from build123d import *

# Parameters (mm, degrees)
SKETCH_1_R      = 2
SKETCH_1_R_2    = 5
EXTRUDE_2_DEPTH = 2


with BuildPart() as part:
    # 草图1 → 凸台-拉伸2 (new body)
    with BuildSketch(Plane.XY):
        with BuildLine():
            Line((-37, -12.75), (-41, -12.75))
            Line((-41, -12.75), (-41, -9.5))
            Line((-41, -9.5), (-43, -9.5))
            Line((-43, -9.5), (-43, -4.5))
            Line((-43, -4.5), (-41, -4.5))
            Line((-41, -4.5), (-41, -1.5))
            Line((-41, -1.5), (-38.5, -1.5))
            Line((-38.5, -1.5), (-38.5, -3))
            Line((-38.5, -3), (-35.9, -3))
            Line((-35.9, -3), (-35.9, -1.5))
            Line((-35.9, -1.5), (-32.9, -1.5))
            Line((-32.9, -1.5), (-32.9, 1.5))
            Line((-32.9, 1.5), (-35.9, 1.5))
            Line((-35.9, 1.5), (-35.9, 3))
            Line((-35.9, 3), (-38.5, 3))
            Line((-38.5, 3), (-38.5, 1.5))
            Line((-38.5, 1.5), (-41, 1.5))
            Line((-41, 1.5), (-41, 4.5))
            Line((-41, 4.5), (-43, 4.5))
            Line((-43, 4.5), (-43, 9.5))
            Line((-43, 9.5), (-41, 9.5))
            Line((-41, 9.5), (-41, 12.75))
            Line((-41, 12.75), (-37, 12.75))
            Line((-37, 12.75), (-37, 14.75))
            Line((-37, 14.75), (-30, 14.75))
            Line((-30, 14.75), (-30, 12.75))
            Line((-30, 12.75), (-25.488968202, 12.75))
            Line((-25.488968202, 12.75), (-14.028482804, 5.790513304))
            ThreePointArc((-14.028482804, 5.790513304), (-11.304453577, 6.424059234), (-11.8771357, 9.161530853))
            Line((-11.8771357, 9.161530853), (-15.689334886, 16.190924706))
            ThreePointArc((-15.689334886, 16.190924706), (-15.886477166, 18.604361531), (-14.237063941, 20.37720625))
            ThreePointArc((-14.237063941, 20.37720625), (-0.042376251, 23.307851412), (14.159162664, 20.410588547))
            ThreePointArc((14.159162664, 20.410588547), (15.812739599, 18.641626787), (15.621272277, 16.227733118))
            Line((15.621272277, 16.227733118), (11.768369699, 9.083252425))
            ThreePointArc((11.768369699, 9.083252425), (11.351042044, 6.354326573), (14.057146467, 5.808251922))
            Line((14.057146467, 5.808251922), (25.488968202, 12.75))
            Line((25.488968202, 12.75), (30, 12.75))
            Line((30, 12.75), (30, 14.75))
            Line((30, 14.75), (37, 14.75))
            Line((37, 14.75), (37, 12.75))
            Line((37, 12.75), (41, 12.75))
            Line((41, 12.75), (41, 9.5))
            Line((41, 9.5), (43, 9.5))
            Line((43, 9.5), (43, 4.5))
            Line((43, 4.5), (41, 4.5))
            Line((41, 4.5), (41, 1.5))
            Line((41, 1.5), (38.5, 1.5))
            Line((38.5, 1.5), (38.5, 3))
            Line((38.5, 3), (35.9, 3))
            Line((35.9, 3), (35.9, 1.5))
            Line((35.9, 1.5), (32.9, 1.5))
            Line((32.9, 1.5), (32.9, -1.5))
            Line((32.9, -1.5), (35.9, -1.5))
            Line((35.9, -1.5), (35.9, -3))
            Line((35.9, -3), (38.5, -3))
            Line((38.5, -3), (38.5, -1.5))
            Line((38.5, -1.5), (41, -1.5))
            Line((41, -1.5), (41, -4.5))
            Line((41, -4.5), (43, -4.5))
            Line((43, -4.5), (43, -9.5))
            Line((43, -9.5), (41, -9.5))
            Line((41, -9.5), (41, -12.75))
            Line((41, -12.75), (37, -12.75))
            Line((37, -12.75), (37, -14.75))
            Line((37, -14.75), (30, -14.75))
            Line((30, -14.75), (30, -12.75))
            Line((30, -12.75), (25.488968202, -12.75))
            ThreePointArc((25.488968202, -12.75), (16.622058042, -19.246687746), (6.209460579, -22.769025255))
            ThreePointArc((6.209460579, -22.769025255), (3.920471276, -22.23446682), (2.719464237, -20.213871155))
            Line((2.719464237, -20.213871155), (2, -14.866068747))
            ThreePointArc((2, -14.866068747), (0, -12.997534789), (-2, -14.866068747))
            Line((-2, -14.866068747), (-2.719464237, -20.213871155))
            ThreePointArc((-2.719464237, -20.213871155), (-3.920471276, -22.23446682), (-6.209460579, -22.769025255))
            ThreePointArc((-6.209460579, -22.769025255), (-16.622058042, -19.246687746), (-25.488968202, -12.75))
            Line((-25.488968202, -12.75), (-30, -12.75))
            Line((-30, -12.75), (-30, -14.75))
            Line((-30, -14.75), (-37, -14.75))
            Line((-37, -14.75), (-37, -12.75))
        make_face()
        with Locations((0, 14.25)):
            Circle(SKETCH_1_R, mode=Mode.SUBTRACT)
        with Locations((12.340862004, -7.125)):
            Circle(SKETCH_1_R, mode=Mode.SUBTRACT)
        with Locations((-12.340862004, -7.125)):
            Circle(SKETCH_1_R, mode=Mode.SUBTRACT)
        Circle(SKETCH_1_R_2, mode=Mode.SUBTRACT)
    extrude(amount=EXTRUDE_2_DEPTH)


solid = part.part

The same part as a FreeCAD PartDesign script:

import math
import FreeCAD as App
import Part
import Sketcher
Q = App.Units.Quantity

doc = App.newDocument("Part")
body = doc.addObject("PartDesign::Body", "Body")

# Sketch on XY plane
sketch1 = body.newObject("Sketcher::SketchObject", "Sketch")
sketch1.AttachmentSupport = (doc.getObject("XY_Plane"), [""])
sketch1.MapMode = "FlatFace"
sketch1.addGeometry([
    Part.LineSegment(App.Vector(-41, -12.8, 0), App.Vector(-37, -12.8, 0)),  # 0
    Part.LineSegment(App.Vector(-37, -12.8, 0), App.Vector(-37, -14.8, 0)),  # 1
    Part.LineSegment(App.Vector(-37, -14.8, 0), App.Vector(-30, -14.8, 0)),  # 2
    Part.LineSegment(App.Vector(-30, -14.8, 0), App.Vector(-30, -12.8, 0)),  # 3
    Part.LineSegment(App.Vector(-30, -12.8, 0), App.Vector(-25.5, -12.8, 0)),  # 4
    Part.ArcOfCircle(Part.Circle(App.Vector(0, 12.7, 0), App.Vector(0, 0, 1), 36), math.radians(-135), math.radians(-100)),  # 5
    Part.ArcOfCircle(Part.Circle(App.Vector(-5.7, -19.8, 0), App.Vector(0, 0, 1), 3), math.radians(-100), math.radians(-8)),  # 6
    Part.LineSegment(App.Vector(-2.7, -20.2, 0), App.Vector(-2, -14.9, 0)),  # 7
    Part.ArcOfCircle(Part.Circle(App.Vector(0, -15, 0), App.Vector(0, 0, 1), 2), math.radians(4), math.radians(176)),  # 8
    Part.LineSegment(App.Vector(2, -14.9, 0), App.Vector(2.7, -20.2, 0)),  # 9
    Part.ArcOfCircle(Part.Circle(App.Vector(5.7, -19.8, 0), App.Vector(0, 0, 1), 3), math.radians(-172), math.radians(-80)),  # 10
    Part.ArcOfCircle(Part.Circle(App.Vector(0, 12.7, 0), App.Vector(0, 0, 1), 36), math.radians(-80), math.radians(-45)),  # 11
    Part.LineSegment(App.Vector(25.5, -12.8, 0), App.Vector(30, -12.8, 0)),  # 12
    Part.LineSegment(App.Vector(30, -12.8, 0), App.Vector(30, -14.8, 0)),  # 13
    Part.LineSegment(App.Vector(30, -14.8, 0), App.Vector(37, -14.8, 0)),  # 14
    Part.LineSegment(App.Vector(37, -14.8, 0), App.Vector(37, -12.8, 0)),  # 15
    Part.LineSegment(App.Vector(37, -12.8, 0), App.Vector(41, -12.8, 0)),  # 16
    Part.LineSegment(App.Vector(41, -12.8, 0), App.Vector(41, -9.5, 0)),  # 17
    Part.LineSegment(App.Vector(41, -9.5, 0), App.Vector(43, -9.5, 0)),  # 18
    Part.LineSegment(App.Vector(43, -9.5, 0), App.Vector(43, -4.5, 0)),  # 19
    Part.LineSegment(App.Vector(43, -4.5, 0), App.Vector(41, -4.5, 0)),  # 20
    Part.LineSegment(App.Vector(41, -4.5, 0), App.Vector(41, -1.5, 0)),  # 21
    Part.LineSegment(App.Vector(41, -1.5, 0), App.Vector(38.5, -1.5, 0)),  # 22
    Part.LineSegment(App.Vector(38.5, -1.5, 0), App.Vector(38.5, -3, 0)),  # 23
    Part.LineSegment(App.Vector(38.5, -3, 0), App.Vector(35.9, -3, 0)),  # 24
    Part.LineSegment(App.Vector(35.9, -3, 0), App.Vector(35.9, -1.5, 0)),  # 25
    Part.LineSegment(App.Vector(35.9, -1.5, 0), App.Vector(32.9, -1.5, 0)),  # 26
    Part.LineSegment(App.Vector(32.9, -1.5, 0), App.Vector(32.9, 1.5, 0)),  # 27
    Part.LineSegment(App.Vector(32.9, 1.5, 0), App.Vector(35.9, 1.5, 0)),  # 28
    Part.LineSegment(App.Vector(35.9, 1.5, 0), App.Vector(35.9, 3, 0)),  # 29
    Part.LineSegment(App.Vector(35.9, 3, 0), App.Vector(38.5, 3, 0)),  # 30
    Part.LineSegment(App.Vector(38.5, 3, 0), App.Vector(38.5, 1.5, 0)),  # 31
    Part.LineSegment(App.Vector(38.5, 1.5, 0), App.Vector(41, 1.5, 0)),  # 32
    Part.LineSegment(App.Vector(41, 1.5, 0), App.Vector(41, 4.5, 0)),  # 33
    Part.LineSegment(App.Vector(41, 4.5, 0), App.Vector(43, 4.5, 0)),  # 34
    Part.LineSegment(App.Vector(43, 4.5, 0), App.Vector(43, 9.5, 0)),  # 35
    Part.LineSegment(App.Vector(43, 9.5, 0), App.Vector(41, 9.5, 0)),  # 36
    Part.LineSegment(App.Vector(41, 9.5, 0), App.Vector(41, 12.8, 0)),  # 37
    Part.LineSegment(App.Vector(41, 12.8, 0), App.Vector(37, 12.8, 0)),  # 38
    Part.LineSegment(App.Vector(37, 12.8, 0), App.Vector(37, 14.8, 0)),  # 39
    Part.LineSegment(App.Vector(37, 14.8, 0), App.Vector(30, 14.8, 0)),  # 40
    Part.LineSegment(App.Vector(30, 14.8, 0), App.Vector(30, 12.8, 0)),  # 41
    Part.LineSegment(App.Vector(30, 12.8, 0), App.Vector(25.5, 12.8, 0)),  # 42
    Part.LineSegment(App.Vector(25.5, 12.8, 0), App.Vector(14.1, 5.8, 0)),  # 43
    Part.ArcOfCircle(Part.Circle(App.Vector(13, 7.5, 0), App.Vector(0, 0, 1), 2), math.radians(128), math.radians(302)),  # 44
    Part.LineSegment(App.Vector(11.8, 9.1, 0), App.Vector(15.6, 16.2, 0)),  # 45
    Part.ArcOfCircle(Part.Circle(App.Vector(13, 17.7, 0), App.Vector(0, 0, 1), 3), math.radians(-28), math.radians(67)),  # 46
    Part.ArcOfCircle(Part.Circle(App.Vector(0, -12.7, 0), App.Vector(0, 0, 1), 36), math.radians(67), math.radians(113)),  # 47
    Part.ArcOfCircle(Part.Circle(App.Vector(-13.1, 17.6, 0), App.Vector(0, 0, 1), 3), math.radians(113), math.radians(208)),  # 48
    Part.LineSegment(App.Vector(-15.7, 16.2, 0), App.Vector(-11.9, 9.2, 0)),  # 49
    Part.ArcOfCircle(Part.Circle(App.Vector(-13, 7.5, 0), App.Vector(0, 0, 1), 2), math.radians(-121), math.radians(56)),  # 50
    Part.LineSegment(App.Vector(-14, 5.8, 0), App.Vector(-25.5, 12.8, 0)),  # 51
    Part.LineSegment(App.Vector(-25.5, 12.8, 0), App.Vector(-30, 12.8, 0)),  # 52
    Part.LineSegment(App.Vector(-30, 12.8, 0), App.Vector(-30, 14.8, 0)),  # 53
    Part.LineSegment(App.Vector(-30, 14.8, 0), App.Vector(-37, 14.8, 0)),  # 54
    Part.LineSegment(App.Vector(-37, 14.8, 0), App.Vector(-37, 12.8, 0)),  # 55
    Part.LineSegment(App.Vector(-37, 12.8, 0), App.Vector(-41, 12.8, 0)),  # 56
    Part.LineSegment(App.Vector(-41, 12.8, 0), App.Vector(-41, 9.5, 0)),  # 57
    Part.LineSegment(App.Vector(-41, 9.5, 0), App.Vector(-43, 9.5, 0)),  # 58
    Part.LineSegment(App.Vector(-43, 9.5, 0), App.Vector(-43, 4.5, 0)),  # 59
    Part.LineSegment(App.Vector(-43, 4.5, 0), App.Vector(-41, 4.5, 0)),  # 60
    Part.LineSegment(App.Vector(-41, 4.5, 0), App.Vector(-41, 1.5, 0)),  # 61
    Part.LineSegment(App.Vector(-41, 1.5, 0), App.Vector(-38.5, 1.5, 0)),  # 62
    Part.LineSegment(App.Vector(-38.5, 1.5, 0), App.Vector(-38.5, 3, 0)),  # 63
    Part.LineSegment(App.Vector(-38.5, 3, 0), App.Vector(-35.9, 3, 0)),  # 64
    Part.LineSegment(App.Vector(-35.9, 3, 0), App.Vector(-35.9, 1.5, 0)),  # 65
    Part.LineSegment(App.Vector(-35.9, 1.5, 0), App.Vector(-32.9, 1.5, 0)),  # 66
    Part.LineSegment(App.Vector(-32.9, 1.5, 0), App.Vector(-32.9, -1.5, 0)),  # 67
    Part.LineSegment(App.Vector(-32.9, -1.5, 0), App.Vector(-35.9, -1.5, 0)),  # 68
    Part.LineSegment(App.Vector(-35.9, -1.5, 0), App.Vector(-35.9, -3, 0)),  # 69
    Part.LineSegment(App.Vector(-35.9, -3, 0), App.Vector(-38.5, -3, 0)),  # 70
    Part.LineSegment(App.Vector(-38.5, -3, 0), App.Vector(-38.5, -1.5, 0)),  # 71
    Part.LineSegment(App.Vector(-38.5, -1.5, 0), App.Vector(-41, -1.5, 0)),  # 72
    Part.LineSegment(App.Vector(-41, -1.5, 0), App.Vector(-41, -4.5, 0)),  # 73
    Part.LineSegment(App.Vector(-41, -4.5, 0), App.Vector(-43, -4.5, 0)),  # 74
    Part.LineSegment(App.Vector(-43, -4.5, 0), App.Vector(-43, -9.5, 0)),  # 75
    Part.LineSegment(App.Vector(-43, -9.5, 0), App.Vector(-41, -9.5, 0)),  # 76
    Part.LineSegment(App.Vector(-41, -9.5, 0), App.Vector(-41, -12.8, 0)),  # 77
    Part.Circle(App.Vector(12.3, -7.1, 0), App.Vector(0, 0, 1), 2),  # 78
    Part.Circle(App.Vector(-12.3, -7.1, 0), App.Vector(0, 0, 1), 2),  # 79
    Part.Circle(App.Vector(0, 0, 0), App.Vector(0, 0, 1), 5),  # 80
    Part.Circle(App.Vector(0, 14.2, 0), App.Vector(0, 0, 1), 2),  # 81
], False)
sketch1.addConstraint([
    Sketcher.Constraint("Coincident", 0, 2, 1, 1),
    Sketcher.Constraint("Coincident", 1, 2, 2, 1),
    Sketcher.Constraint("Coincident", 2, 2, 3, 1),
    Sketcher.Constraint("Coincident", 3, 2, 4, 1),
    Sketcher.Constraint("Coincident", 4, 2, 5, 1),
    Sketcher.Constraint("Tangent", 5, 2, 6, 1),
    Sketcher.Constraint("Tangent", 6, 2, 7, 1),
    Sketcher.Constraint("Coincident", 7, 2, 8, 2),
    Sketcher.Constraint("Coincident", 8, 1, 9, 1),
    Sketcher.Constraint("Tangent", 9, 2, 10, 1),
    Sketcher.Constraint("Tangent", 10, 2, 11, 1),
    Sketcher.Constraint("Coincident", 11, 2, 12, 1),
    Sketcher.Constraint("Coincident", 12, 2, 13, 1),
    Sketcher.Constraint("Coincident", 13, 2, 14, 1),
    Sketcher.Constraint("Coincident", 14, 2, 15, 1),
    Sketcher.Constraint("Coincident", 15, 2, 16, 1),
    Sketcher.Constraint("Coincident", 16, 2, 17, 1),
    Sketcher.Constraint("Coincident", 17, 2, 18, 1),
    Sketcher.Constraint("Coincident", 18, 2, 19, 1),
    Sketcher.Constraint("Coincident", 19, 2, 20, 1),
    Sketcher.Constraint("Coincident", 20, 2, 21, 1),
    Sketcher.Constraint("Coincident", 21, 2, 22, 1),
    Sketcher.Constraint("Coincident", 22, 2, 23, 1),
    Sketcher.Constraint("Coincident", 23, 2, 24, 1),
    Sketcher.Constraint("Coincident", 24, 2, 25, 1),
    Sketcher.Constraint("Coincident", 25, 2, 26, 1),
    Sketcher.Constraint("Coincident", 26, 2, 27, 1),
    Sketcher.Constraint("Coincident", 27, 2, 28, 1),
    Sketcher.Constraint("Coincident", 28, 2, 29, 1),
    Sketcher.Constraint("Coincident", 29, 2, 30, 1),
    Sketcher.Constraint("Coincident", 30, 2, 31, 1),
    Sketcher.Constraint("Coincident", 31, 2, 32, 1),
    Sketcher.Constraint("Coincident", 32, 2, 33, 1),
    Sketcher.Constraint("Coincident", 33, 2, 34, 1),
    Sketcher.Constraint("Coincident", 34, 2, 35, 1),
    Sketcher.Constraint("Coincident", 35, 2, 36, 1),
    Sketcher.Constraint("Coincident", 36, 2, 37, 1),
    Sketcher.Constraint("Coincident", 37, 2, 38, 1),
    Sketcher.Constraint("Coincident", 38, 2, 39, 1),
    Sketcher.Constraint("Coincident", 39, 2, 40, 1),
    Sketcher.Constraint("Coincident", 40, 2, 41, 1),
    Sketcher.Constraint("Coincident", 41, 2, 42, 1),
    Sketcher.Constraint("Coincident", 42, 2, 43, 1),
    Sketcher.Constraint("Coincident", 43, 2, 44, 2),
    Sketcher.Constraint("Coincident", 44, 1, 45, 1),
    Sketcher.Constraint("Tangent", 45, 2, 46, 1),
    Sketcher.Constraint("Tangent", 46, 2, 47, 1),
    Sketcher.Constraint("Tangent", 47, 2, 48, 1),
    Sketcher.Constraint("Tangent", 48, 2, 49, 1),
    Sketcher.Constraint("Coincident", 49, 2, 50, 2),
    Sketcher.Constraint("Tangent", 50, 1, 51, 1),
    Sketcher.Constraint("Coincident", 51, 2, 52, 1),
    Sketcher.Constraint("Coincident", 52, 2, 53, 1),
    Sketcher.Constraint("Coincident", 53, 2, 54, 1),
    Sketcher.Constraint("Coincident", 54, 2, 55, 1),
    Sketcher.Constraint("Coincident", 55, 2, 56, 1),
    Sketcher.Constraint("Coincident", 56, 2, 57, 1),
    Sketcher.Constraint("Coincident", 57, 2, 58, 1),
    Sketcher.Constraint("Coincident", 58, 2, 59, 1),
    Sketcher.Constraint("Coincident", 59, 2, 60, 1),
    Sketcher.Constraint("Coincident", 60, 2, 61, 1),
    Sketcher.Constraint("Coincident", 61, 2, 62, 1),
    Sketcher.Constraint("Coincident", 62, 2, 63, 1),
    Sketcher.Constraint("Coincident", 63, 2, 64, 1),
    Sketcher.Constraint("Coincident", 64, 2, 65, 1),
    Sketcher.Constraint("Coincident", 65, 2, 66, 1),
    Sketcher.Constraint("Coincident", 66, 2, 67, 1),
    Sketcher.Constraint("Coincident", 67, 2, 68, 1),
    Sketcher.Constraint("Coincident", 68, 2, 69, 1),
    Sketcher.Constraint("Coincident", 69, 2, 70, 1),
    Sketcher.Constraint("Coincident", 70, 2, 71, 1),
    Sketcher.Constraint("Coincident", 71, 2, 72, 1),
    Sketcher.Constraint("Coincident", 72, 2, 73, 1),
    Sketcher.Constraint("Coincident", 73, 2, 74, 1),
    Sketcher.Constraint("Coincident", 74, 2, 75, 1),
    Sketcher.Constraint("Coincident", 75, 2, 76, 1),
    Sketcher.Constraint("Coincident", 76, 2, 77, 1),
    Sketcher.Constraint("Coincident", 77, 2, 0, 1),
    Sketcher.Constraint("Horizontal", 0),
    Sketcher.Constraint("Vertical", 1),
    Sketcher.Constraint("Horizontal", 2),
    Sketcher.Constraint("Vertical", 3),
    Sketcher.Constraint("Horizontal", 4),
    Sketcher.Constraint("Horizontal", 12),
    Sketcher.Constraint("Vertical", 13),
    Sketcher.Constraint("Horizontal", 14),
    Sketcher.Constraint("Vertical", 15),
    Sketcher.Constraint("Horizontal", 16),
    Sketcher.Constraint("Vertical", 17),
    Sketcher.Constraint("Horizontal", 18),
    Sketcher.Constraint("Vertical", 19),
    Sketcher.Constraint("Horizontal", 20),
    Sketcher.Constraint("Vertical", 21),
    Sketcher.Constraint("Horizontal", 22),
    Sketcher.Constraint("Vertical", 23),
    Sketcher.Constraint("Horizontal", 24),
    Sketcher.Constraint("Vertical", 25),
    Sketcher.Constraint("Horizontal", 26),
    Sketcher.Constraint("Vertical", 27),
    Sketcher.Constraint("Horizontal", 28),
    Sketcher.Constraint("Vertical", 29),
    Sketcher.Constraint("Horizontal", 30),
    Sketcher.Constraint("Vertical", 31),
    Sketcher.Constraint("Horizontal", 32),
    Sketcher.Constraint("Vertical", 33),
    Sketcher.Constraint("Horizontal", 34),
    Sketcher.Constraint("Vertical", 35),
    Sketcher.Constraint("Horizontal", 36),
    Sketcher.Constraint("Vertical", 37),
    Sketcher.Constraint("Horizontal", 38),
    Sketcher.Constraint("Vertical", 39),
    Sketcher.Constraint("Horizontal", 40),
    Sketcher.Constraint("Vertical", 41),
    Sketcher.Constraint("Horizontal", 42),
    Sketcher.Constraint("Horizontal", 52),
    Sketcher.Constraint("Vertical", 53),
    Sketcher.Constraint("Horizontal", 54),
    Sketcher.Constraint("Vertical", 55),
    Sketcher.Constraint("Horizontal", 56),
    Sketcher.Constraint("Vertical", 57),
    Sketcher.Constraint("Horizontal", 58),
    Sketcher.Constraint("Vertical", 59),
    Sketcher.Constraint("Horizontal", 60),
    Sketcher.Constraint("Vertical", 61),
    Sketcher.Constraint("Horizontal", 62),
    Sketcher.Constraint("Vertical", 63),
    Sketcher.Constraint("Horizontal", 64),
    Sketcher.Constraint("Vertical", 65),
    Sketcher.Constraint("Horizontal", 66),
    Sketcher.Constraint("Vertical", 67),
    Sketcher.Constraint("Horizontal", 68),
    Sketcher.Constraint("Vertical", 69),
    Sketcher.Constraint("Horizontal", 70),
    Sketcher.Constraint("Vertical", 71),
    Sketcher.Constraint("Horizontal", 72),
    Sketcher.Constraint("Vertical", 73),
    Sketcher.Constraint("Horizontal", 74),
    Sketcher.Constraint("Vertical", 75),
    Sketcher.Constraint("Horizontal", 76),
    Sketcher.Constraint("Vertical", 77),
    Sketcher.Constraint("Coincident", 80, 3, -1, 1),
    Sketcher.Constraint("Coincident", 11, 3, 5, 3),
    Sketcher.Constraint("Equal", 6, 10),
    Sketcher.Constraint("Equal", 5, 11),
    Sketcher.Constraint("Equal", 10, 46),
    Sketcher.Constraint("Equal", 11, 47),
    Sketcher.Constraint("Equal", 46, 48),
    Sketcher.Constraint("Equal", 44, 50),
    Sketcher.Constraint("Equal", 50, 78),
    Sketcher.Constraint("Equal", 78, 79),
    Sketcher.Constraint("Equal", 79, 81),
    Sketcher.Constraint("Symmetric", 5, 3, 47, 3, -1, 1),
    Sketcher.Constraint("Symmetric", 0, 2, 38, 2, -1, 1),
    Sketcher.Constraint("Symmetric", 2, 2, 40, 2, -1, 1),
    Sketcher.Constraint("Symmetric", 4, 2, 42, 2, -1, 1),
    Sketcher.Constraint("Symmetric", 11, 2, 51, 2, -1, 1),
    Sketcher.Constraint("Symmetric", 13, 2, 53, 2, -1, 1),
    Sketcher.Constraint("Symmetric", 15, 2, 55, 2, -1, 1),
    Sketcher.Constraint("Symmetric", 17, 2, 57, 2, -1, 1),
    Sketcher.Constraint("Symmetric", 19, 2, 59, 2, -1, 1),
    Sketcher.Constraint("Symmetric", 21, 2, 61, 2, -1, 1),
    Sketcher.Constraint("Symmetric", 23, 2, 63, 2, -1, 1),
    Sketcher.Constraint("Symmetric", 25, 2, 65, 2, -1, 1),
    Sketcher.Constraint("Symmetric", 27, 2, 67, 2, -1, 1),
    Sketcher.Constraint("Symmetric", 29, 2, 69, 2, -1, 1),
    Sketcher.Constraint("Symmetric", 31, 2, 71, 2, -1, 1),
    Sketcher.Constraint("Symmetric", 33, 2, 73, 2, -1, 1),
    Sketcher.Constraint("Symmetric", 35, 2, 75, 2, -1, 1),
    Sketcher.Constraint("Symmetric", 6, 3, 10, 3, -2),
    Sketcher.Constraint("Symmetric", 44, 3, 50, 3, -2),
    Sketcher.Constraint("Symmetric", 78, 3, 79, 3, -2),
    Sketcher.Constraint("Symmetric", 7, 2, 8, 1, -2),
    Sketcher.Constraint("Symmetric", 3, 2, 12, 2, -2),
    Sketcher.Constraint("Symmetric", 1, 2, 14, 2, -2),
    Sketcher.Constraint("Symmetric", 37, 2, 56, 2, -2),
    Sketcher.Constraint("Symmetric", 35, 2, 58, 2, -2),
    Sketcher.Constraint("Symmetric", 33, 2, 60, 2, -2),
    Sketcher.Constraint("Symmetric", 31, 2, 62, 2, -2),
    Sketcher.Constraint("Symmetric", 29, 2, 64, 2, -2),
    Sketcher.Constraint("PointOnObject", 81, 3, -2),
    Sketcher.Constraint("Horizontal", 0, 2, 3, 2),
    Sketcher.Constraint("Horizontal", 22, 2, 25, 2),
    Sketcher.Constraint("Horizontal", 28, 2, 31, 2),
    Sketcher.Constraint("Vertical", 17, 2, 20, 2),
    Sketcher.Constraint("Vertical", 73, 2, 76, 2),
    Sketcher.Constraint("Equal", 76, 1),
    Sketcher.Constraint("Equal", 68, 21),
    Sketcher.Constraint("Equal", 21, 27),
    Sketcher.Constraint("Diameter", 78, Q("4 mm")),
    Sketcher.Constraint("Diameter", 80, Q("10 mm")),
    Sketcher.Constraint("Radius", 6, Q("3 mm")),
    Sketcher.Constraint("DistanceX", 0, 1, 0, 2, Q("4 mm")),
    Sketcher.Constraint("DistanceX", 2, 1, 2, 2, Q("7 mm")),
    Sketcher.Constraint("DistanceX", 18, 1, 18, 2, Q("2 mm")),
    Sketcher.Constraint("DistanceX", 26, 2, 26, 1, Q("3 mm")),
    Sketcher.Constraint("DistanceY", 19, 1, 19, 2, Q("5 mm")),
    Sketcher.Constraint("DistanceX", 22, 2, 22, 1, Q("2.5 mm")),
    Sketcher.Constraint("DistanceX", 24, 2, 24, 1, Q("2.6 mm")),
    Sketcher.Constraint("DistanceY", 23, 2, 23, 1, Q("1.5 mm")),
    Sketcher.Constraint("DistanceX", 0, 2, -1, 1, Q("37 mm")),
    Sketcher.Constraint("DistanceX", 7, 2, -1, 1, Q("2 mm")),
    Sketcher.Constraint("DistanceY", 17, 1, 17, 2, Q("3.25 mm")),
    Sketcher.Constraint("DistanceY", -1, 1, 44, 3, Q("7.5 mm")),
    Sketcher.Constraint("DistanceY", -1, 1, 81, 3, Q("14.25 mm")),
    Sketcher.Constraint("DistanceY", 78, 3, -1, 1, Q("7.125 mm")),
    Sketcher.Constraint("Radius", 5, Q("36.046845 mm")),
    Sketcher.Constraint("Radius", 8, Q("2.004625 mm")),
    Sketcher.Constraint("Distance", 51, Q("13.408101 mm")),
    Sketcher.Constraint("DistanceX", 4, 1, 4, 2, Q("4.511032 mm")),
    Sketcher.Constraint("Distance", 7, Q("5.395982 mm")),
    Sketcher.Constraint("Distance", 45, Q("8.117171 mm")),
    Sketcher.Constraint("DistanceY", 6, 3, -1, 1, Q("19.813871 mm")),
    Sketcher.Constraint("DistanceY", -1, 1, 48, 3, Q("17.621111 mm")),
    Sketcher.Constraint("DistanceY", -1, 1, 43, 2, Q("5.808252 mm")),
    Sketcher.Constraint("DistanceX", -1, 1, 44, 1, Q("11.76837 mm")),
    Sketcher.Constraint("DistanceY", -1, 1, 49, 2, Q("9.161531 mm")),
    Sketcher.Constraint("DistanceX", -1, 1, 78, 3, Q("12.340862 mm")),
])
pad1 = body.newObject("PartDesign::Pad", "Pad")
pad1.Profile = sketch1
pad1.Length = 2

doc.recompute()
